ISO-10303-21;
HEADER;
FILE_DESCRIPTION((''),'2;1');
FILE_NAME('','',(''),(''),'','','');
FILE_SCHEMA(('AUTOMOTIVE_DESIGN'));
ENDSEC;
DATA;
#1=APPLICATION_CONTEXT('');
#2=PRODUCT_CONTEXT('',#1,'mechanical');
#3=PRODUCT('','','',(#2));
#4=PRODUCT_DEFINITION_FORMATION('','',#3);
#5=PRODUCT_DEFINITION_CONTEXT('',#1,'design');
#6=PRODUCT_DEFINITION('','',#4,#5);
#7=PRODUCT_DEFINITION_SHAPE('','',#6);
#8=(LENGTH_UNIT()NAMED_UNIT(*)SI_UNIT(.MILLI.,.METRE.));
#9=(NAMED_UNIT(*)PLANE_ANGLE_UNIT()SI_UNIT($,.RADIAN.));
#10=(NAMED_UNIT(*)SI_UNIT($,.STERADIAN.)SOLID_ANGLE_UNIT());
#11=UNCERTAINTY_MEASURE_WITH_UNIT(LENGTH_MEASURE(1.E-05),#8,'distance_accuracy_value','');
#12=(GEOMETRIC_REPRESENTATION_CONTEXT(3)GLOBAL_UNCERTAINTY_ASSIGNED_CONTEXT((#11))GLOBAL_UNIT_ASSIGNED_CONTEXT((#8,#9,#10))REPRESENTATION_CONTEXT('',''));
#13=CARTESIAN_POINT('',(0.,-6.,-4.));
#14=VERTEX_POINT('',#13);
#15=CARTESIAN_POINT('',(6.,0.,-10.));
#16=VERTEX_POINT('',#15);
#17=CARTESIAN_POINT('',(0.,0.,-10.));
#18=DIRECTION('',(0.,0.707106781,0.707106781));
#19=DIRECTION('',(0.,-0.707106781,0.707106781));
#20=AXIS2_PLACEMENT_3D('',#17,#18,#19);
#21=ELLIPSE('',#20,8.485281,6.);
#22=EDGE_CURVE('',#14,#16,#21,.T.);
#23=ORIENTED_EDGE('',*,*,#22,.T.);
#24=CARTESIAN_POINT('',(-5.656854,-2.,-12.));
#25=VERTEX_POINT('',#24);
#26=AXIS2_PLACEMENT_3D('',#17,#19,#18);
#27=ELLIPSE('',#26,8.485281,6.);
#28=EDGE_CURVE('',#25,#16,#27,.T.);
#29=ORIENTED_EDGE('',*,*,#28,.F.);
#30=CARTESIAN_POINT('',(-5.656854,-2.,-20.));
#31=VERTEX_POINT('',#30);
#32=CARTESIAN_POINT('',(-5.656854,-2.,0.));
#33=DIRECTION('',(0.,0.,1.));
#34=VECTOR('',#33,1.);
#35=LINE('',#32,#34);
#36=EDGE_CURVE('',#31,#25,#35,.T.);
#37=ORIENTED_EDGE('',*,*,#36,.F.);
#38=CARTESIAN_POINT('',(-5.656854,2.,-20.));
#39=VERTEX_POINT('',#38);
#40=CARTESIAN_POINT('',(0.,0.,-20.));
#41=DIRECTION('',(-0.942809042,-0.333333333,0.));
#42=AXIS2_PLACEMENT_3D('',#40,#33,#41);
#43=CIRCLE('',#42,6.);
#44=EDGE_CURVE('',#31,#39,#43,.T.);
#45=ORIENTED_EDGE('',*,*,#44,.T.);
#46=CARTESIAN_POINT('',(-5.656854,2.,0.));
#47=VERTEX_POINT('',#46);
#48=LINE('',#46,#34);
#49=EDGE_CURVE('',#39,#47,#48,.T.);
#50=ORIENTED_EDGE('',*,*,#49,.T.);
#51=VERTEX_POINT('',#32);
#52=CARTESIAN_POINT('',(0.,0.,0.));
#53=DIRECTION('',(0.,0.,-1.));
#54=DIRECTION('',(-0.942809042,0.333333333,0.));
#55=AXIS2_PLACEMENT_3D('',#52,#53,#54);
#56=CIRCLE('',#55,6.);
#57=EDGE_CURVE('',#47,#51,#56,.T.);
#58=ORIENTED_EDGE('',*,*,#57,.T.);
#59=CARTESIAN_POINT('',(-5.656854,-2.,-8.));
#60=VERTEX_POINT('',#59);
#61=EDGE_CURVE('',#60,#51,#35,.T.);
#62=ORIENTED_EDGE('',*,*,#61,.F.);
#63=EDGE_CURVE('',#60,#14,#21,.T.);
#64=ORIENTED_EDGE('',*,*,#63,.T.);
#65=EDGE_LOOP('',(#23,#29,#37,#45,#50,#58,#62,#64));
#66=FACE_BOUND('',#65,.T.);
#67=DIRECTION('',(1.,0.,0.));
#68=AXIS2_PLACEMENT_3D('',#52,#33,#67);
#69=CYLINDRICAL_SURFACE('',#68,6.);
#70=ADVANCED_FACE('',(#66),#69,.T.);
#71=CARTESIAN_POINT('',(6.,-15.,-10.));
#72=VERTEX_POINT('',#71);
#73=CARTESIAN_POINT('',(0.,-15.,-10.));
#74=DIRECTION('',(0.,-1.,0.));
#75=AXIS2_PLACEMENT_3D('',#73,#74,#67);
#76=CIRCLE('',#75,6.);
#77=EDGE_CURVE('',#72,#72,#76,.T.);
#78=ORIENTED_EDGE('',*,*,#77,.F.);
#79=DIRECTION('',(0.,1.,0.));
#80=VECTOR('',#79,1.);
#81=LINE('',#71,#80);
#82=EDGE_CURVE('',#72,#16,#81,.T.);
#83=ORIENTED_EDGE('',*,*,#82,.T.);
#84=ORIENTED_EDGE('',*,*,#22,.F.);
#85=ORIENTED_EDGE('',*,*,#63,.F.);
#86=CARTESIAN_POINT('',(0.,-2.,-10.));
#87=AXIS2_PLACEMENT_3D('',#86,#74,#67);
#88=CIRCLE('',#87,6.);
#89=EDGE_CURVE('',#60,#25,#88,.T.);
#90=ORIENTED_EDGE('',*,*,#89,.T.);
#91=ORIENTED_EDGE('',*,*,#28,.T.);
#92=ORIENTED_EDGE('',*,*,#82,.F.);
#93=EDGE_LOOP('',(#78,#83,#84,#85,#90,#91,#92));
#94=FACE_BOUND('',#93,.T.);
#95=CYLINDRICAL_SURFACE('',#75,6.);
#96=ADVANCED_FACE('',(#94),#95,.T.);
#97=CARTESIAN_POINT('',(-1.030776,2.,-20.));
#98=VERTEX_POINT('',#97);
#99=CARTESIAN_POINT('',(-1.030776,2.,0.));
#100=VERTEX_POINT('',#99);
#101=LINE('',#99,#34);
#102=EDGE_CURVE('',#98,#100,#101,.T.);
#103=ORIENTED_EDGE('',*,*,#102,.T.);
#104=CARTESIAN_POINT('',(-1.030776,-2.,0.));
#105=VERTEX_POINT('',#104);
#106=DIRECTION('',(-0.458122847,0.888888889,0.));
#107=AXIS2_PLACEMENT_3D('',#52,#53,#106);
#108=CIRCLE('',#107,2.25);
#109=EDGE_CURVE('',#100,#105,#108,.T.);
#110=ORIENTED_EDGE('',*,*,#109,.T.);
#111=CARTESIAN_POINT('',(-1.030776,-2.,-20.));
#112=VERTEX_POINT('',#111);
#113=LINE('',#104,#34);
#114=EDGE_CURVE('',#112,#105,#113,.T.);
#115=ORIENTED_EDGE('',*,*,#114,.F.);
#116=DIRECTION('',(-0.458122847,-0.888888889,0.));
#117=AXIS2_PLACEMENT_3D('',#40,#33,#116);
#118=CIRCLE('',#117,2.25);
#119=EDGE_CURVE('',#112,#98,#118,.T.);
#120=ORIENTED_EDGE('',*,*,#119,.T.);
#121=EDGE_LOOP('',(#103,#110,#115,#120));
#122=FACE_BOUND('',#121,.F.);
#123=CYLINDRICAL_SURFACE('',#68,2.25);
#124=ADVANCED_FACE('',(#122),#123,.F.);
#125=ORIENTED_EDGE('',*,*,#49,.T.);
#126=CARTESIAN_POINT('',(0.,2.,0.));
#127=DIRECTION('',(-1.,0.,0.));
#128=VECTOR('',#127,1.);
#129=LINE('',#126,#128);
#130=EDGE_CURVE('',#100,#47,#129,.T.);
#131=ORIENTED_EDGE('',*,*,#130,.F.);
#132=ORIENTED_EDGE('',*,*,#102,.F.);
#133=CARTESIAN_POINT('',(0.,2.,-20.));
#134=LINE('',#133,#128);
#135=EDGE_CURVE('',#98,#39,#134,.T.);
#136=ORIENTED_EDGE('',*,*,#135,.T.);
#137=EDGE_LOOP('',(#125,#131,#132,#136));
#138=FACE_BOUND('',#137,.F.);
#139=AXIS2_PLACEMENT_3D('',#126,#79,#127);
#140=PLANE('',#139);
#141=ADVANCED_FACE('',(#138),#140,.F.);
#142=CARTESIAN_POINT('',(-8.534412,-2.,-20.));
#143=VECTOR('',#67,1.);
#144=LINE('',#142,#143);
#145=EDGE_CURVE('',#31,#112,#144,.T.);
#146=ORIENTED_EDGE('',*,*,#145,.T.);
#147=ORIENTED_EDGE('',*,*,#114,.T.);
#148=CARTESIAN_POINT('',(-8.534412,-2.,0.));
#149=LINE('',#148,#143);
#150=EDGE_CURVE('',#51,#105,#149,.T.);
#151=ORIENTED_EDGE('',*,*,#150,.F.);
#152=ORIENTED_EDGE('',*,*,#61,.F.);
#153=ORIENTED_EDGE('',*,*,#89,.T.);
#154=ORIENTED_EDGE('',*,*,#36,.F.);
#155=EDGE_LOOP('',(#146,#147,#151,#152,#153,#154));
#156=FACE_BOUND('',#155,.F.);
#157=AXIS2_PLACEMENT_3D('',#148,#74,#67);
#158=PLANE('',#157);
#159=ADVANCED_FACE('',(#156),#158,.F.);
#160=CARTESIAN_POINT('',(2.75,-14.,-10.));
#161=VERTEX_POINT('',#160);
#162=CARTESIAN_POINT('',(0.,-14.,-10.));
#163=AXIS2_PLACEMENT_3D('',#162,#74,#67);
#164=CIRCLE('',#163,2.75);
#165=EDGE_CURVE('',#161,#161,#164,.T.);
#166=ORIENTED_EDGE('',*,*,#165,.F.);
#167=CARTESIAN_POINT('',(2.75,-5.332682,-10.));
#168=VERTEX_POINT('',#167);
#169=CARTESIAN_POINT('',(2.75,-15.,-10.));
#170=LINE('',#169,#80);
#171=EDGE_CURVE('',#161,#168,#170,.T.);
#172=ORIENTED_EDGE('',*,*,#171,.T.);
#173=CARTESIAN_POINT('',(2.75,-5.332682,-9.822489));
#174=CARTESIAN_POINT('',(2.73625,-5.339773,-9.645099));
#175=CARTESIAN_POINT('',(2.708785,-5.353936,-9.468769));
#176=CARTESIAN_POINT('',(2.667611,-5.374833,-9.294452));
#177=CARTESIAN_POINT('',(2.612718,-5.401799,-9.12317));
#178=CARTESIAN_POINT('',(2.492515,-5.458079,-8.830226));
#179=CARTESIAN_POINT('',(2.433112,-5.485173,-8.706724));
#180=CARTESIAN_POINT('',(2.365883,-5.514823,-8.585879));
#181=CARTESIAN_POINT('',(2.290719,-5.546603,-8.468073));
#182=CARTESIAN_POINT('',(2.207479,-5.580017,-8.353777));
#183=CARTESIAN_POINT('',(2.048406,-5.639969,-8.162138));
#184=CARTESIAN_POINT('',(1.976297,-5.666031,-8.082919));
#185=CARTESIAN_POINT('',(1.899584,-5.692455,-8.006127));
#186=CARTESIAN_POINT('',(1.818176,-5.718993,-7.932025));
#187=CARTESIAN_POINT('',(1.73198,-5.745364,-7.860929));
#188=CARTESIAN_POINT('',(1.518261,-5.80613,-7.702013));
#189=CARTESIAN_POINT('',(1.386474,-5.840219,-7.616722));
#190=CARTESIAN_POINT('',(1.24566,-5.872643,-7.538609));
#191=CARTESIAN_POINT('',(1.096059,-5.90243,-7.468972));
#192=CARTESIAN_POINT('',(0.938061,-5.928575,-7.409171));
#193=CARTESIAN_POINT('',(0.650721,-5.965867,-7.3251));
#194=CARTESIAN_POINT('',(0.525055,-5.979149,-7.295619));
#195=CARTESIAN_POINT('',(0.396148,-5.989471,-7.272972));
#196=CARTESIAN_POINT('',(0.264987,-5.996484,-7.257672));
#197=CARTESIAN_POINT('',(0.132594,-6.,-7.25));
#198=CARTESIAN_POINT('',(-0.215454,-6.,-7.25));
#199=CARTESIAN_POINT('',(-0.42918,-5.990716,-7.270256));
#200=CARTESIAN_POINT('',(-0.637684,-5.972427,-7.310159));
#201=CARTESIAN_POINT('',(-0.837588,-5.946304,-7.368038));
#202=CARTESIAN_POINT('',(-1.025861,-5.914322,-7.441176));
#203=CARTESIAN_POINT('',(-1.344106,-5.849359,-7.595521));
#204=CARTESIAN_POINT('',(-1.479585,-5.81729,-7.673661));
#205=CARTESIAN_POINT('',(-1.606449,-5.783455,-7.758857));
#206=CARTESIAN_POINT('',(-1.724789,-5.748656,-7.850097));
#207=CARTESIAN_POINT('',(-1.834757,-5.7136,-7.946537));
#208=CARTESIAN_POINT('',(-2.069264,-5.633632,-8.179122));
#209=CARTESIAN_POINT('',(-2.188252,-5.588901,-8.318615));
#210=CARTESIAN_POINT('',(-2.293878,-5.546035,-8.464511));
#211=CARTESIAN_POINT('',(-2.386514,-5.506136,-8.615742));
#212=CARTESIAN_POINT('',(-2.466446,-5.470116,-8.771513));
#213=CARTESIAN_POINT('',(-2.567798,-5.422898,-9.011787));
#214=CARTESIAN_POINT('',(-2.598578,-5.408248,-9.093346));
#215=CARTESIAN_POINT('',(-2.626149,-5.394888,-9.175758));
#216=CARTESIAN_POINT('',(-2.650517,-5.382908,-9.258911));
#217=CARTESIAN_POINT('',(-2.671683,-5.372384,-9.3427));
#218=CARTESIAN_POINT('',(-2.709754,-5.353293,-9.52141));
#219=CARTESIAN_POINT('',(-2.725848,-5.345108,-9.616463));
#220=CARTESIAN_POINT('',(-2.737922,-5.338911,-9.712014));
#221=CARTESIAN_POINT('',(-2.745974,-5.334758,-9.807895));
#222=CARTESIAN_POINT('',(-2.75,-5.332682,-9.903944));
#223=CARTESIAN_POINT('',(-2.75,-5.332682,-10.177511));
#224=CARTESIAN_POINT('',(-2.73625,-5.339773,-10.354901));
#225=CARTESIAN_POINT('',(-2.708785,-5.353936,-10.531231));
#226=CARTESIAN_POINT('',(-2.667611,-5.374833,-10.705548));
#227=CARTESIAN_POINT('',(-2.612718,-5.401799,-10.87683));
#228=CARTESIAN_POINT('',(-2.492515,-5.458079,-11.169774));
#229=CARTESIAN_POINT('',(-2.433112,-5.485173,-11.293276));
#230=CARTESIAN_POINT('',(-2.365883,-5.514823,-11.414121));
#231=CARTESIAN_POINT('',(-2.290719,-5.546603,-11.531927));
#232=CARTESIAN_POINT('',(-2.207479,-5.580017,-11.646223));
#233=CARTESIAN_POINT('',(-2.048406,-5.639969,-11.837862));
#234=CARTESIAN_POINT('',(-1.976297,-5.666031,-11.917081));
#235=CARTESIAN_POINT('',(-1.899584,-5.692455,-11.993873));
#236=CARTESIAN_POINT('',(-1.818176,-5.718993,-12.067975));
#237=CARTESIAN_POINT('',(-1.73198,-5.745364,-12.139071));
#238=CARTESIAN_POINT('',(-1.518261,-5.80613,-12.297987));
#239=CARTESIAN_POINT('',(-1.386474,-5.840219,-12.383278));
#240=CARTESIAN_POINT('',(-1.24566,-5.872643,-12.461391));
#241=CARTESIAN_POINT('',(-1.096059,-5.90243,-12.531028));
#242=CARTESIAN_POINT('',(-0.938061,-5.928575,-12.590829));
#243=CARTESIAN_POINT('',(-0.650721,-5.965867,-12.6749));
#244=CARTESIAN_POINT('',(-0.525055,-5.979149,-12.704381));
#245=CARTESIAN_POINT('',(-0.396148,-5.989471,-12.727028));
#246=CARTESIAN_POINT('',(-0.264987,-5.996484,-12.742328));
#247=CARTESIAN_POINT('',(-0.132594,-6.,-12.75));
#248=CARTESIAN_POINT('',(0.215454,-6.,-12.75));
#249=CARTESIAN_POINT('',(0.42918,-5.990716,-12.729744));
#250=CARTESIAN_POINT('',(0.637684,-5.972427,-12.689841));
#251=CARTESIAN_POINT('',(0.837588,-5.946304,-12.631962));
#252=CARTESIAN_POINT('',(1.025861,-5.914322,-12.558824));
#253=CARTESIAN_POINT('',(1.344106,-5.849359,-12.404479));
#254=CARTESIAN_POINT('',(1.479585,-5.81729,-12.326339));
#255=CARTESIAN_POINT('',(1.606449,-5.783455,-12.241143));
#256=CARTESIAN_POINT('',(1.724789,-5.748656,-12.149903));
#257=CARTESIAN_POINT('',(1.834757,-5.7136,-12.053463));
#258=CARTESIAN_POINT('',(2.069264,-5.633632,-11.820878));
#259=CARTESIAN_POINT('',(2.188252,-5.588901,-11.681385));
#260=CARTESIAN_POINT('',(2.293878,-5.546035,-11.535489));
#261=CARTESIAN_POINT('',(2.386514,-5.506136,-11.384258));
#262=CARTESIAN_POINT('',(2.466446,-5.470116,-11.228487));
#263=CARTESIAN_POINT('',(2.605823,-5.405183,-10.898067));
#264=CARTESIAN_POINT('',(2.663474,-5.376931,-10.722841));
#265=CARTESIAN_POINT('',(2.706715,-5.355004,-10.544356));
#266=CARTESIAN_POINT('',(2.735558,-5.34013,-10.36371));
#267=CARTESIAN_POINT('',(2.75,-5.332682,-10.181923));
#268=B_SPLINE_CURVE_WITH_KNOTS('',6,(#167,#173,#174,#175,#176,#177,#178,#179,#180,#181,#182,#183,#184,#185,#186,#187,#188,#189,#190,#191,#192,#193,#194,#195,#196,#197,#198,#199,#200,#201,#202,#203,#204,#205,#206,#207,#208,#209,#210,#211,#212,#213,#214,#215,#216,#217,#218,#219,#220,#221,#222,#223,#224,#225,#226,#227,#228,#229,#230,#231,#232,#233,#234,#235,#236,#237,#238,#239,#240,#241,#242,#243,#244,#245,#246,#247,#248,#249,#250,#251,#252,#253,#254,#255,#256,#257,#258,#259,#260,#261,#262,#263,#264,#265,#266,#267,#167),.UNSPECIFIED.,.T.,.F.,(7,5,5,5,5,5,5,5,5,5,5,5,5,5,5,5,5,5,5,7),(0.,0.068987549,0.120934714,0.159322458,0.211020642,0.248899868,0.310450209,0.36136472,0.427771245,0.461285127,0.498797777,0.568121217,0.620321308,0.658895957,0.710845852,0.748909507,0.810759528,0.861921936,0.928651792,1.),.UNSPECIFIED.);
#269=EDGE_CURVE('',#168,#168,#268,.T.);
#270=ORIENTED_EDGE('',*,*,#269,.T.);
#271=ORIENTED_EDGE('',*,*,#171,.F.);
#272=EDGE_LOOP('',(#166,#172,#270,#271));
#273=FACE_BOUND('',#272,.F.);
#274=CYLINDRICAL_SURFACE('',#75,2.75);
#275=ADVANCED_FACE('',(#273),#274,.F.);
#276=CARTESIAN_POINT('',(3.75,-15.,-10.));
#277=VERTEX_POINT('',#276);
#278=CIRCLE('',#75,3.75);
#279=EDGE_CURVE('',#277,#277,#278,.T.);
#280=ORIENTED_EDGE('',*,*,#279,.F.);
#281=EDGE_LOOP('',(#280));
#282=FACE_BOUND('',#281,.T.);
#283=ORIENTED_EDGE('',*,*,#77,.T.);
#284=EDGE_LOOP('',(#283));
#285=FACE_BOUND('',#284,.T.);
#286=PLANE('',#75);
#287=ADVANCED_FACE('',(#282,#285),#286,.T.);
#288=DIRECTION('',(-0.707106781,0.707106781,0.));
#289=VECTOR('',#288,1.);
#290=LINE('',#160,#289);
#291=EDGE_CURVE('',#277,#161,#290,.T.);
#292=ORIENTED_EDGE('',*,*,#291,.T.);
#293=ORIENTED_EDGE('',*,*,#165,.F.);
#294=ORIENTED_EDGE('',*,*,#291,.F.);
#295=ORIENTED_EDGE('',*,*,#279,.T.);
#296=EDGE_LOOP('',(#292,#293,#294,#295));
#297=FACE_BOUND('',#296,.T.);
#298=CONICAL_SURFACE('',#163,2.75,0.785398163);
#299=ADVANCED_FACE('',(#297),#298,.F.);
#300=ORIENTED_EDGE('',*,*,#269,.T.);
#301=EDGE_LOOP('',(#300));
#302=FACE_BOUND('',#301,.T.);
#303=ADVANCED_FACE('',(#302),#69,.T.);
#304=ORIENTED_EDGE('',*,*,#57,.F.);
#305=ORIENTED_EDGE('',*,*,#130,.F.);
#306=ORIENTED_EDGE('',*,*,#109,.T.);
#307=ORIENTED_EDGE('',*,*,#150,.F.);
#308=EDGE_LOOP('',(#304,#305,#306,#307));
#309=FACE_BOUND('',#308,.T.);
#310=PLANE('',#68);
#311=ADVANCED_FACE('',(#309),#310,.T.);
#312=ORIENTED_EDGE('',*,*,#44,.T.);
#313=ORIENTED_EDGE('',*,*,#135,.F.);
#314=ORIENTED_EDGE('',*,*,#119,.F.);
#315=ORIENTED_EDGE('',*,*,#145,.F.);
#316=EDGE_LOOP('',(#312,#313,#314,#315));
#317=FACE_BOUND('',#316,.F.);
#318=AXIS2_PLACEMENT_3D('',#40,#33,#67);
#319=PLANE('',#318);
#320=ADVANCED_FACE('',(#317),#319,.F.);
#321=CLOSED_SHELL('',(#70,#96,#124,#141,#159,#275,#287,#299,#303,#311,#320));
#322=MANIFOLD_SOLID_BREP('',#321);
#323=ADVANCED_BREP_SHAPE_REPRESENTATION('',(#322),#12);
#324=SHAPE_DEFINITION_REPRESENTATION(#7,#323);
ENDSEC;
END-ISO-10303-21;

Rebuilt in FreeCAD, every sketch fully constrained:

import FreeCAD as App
import Part
import Sketcher
Q = App.Units.Quantity


def edges_at(feature, points):
    """Names of the edges that pass closest to the given points."""
    edges = feature.Shape.Edges
    near = lambda p: min(range(len(edges)), key=lambda i: edges[i].distToShape(Part.Vertex(*p))[0])
    return sorted({f"Edge{near(p) + 1}" for p in points})

doc = App.newDocument("Part")
body = doc.addObject("PartDesign::Body", "Body")

# Sketch on XY plane
sketch1 = body.newObject("Sketcher::SketchObject", "Sketch")
sketch1.AttachmentSupport = (doc.getObject("XY_Plane"), [""])
sketch1.MapMode = "FlatFace"
sketch1.addGeometry(Part.Circle(App.Vector(0, 0, 0), App.Vector(0, 0, 1), 6), False)
sketch1.addConstraint([
    Sketcher.Constraint("Coincident", 0, 3, -1, 1),
    Sketcher.Constraint("Diameter", 0, Q("12 mm")),
])
pad1 = body.newObject("PartDesign::Pad", "Pad")
pad1.Profile = sketch1
pad1.Length = 20
pad1.Reversed = True

# Sketch on XZ plane
sketch2 = body.newObject("Sketcher::SketchObject", "Sketch001")
sketch2.AttachmentSupport = (doc.getObject("XZ_Plane"), [""])
sketch2.MapMode = "FlatFace"
sketch2.AttachmentOffset = App.Placement(App.Vector(0, 0, 15), App.Rotation())
sketch2.addGeometry([
    Part.Circle(App.Vector(0, -10, 0), App.Vector(0, 0, 1), 6),
    Part.Circle(App.Vector(0, -10, 0), App.Vector(0, 0, 1), 2.75),
], False)
sketch2.addConstraint([
    Sketcher.Constraint("Coincident", 1, 3, 0, 3),
    Sketcher.Constraint("PointOnObject", 0, 3, -2),
    Sketcher.Constraint("Diameter", 0, Q("12 mm")),
    Sketcher.Constraint("Diameter", 1, Q("5.5 mm")),
    Sketcher.Constraint("DistanceY", 0, 3, -1, 1, Q("10 mm")),
])
pad2 = body.newObject("PartDesign::Pad", "Pad001")
pad2.Profile = sketch2
pad2.Length = 15
pad2.Reversed = True

# Sketch on XY plane
sketch3 = body.newObject("Sketcher::SketchObject", "Sketch002")
sketch3.AttachmentSupport = (doc.getObject("XY_Plane"), [""])
sketch3.MapMode = "FlatFace"
sketch3.addGeometry(Part.Circle(App.Vector(0, 0, 0), App.Vector(0, 0, 1), 2.25), False)
sketch3.addConstraint([
    Sketcher.Constraint("Coincident", 0, 3, -1, 1),
    Sketcher.Constraint("Diameter", 0, Q("4.5 mm")),
])
pocket1 = body.newObject("PartDesign::Pocket", "Pocket")
pocket1.Profile = sketch3
pocket1.Type = "ThroughAll"

# Sketch on XY plane
sketch4 = body.newObject("Sketcher::SketchObject", "Sketch003")
sketch4.AttachmentSupport = (doc.getObject("XY_Plane"), [""])
sketch4.MapMode = "FlatFace"
sketch4.addGeometry([
    Part.LineSegment(App.Vector(0, -2, 0), App.Vector(0, 2, 0)),
    Part.LineSegment(App.Vector(0, 2, 0), App.Vector(-8.534412, 2, 0)),
    Part.LineSegment(App.Vector(-8.534412, 2, 0), App.Vector(-8.534412, -2, 0)),
    Part.LineSegment(App.Vector(-8.534412, -2, 0), App.Vector(0, -2, 0)),
], False)
sketch4.addConstraint([
    Sketcher.Constraint("Coincident", 0, 2, 1, 1),
    Sketcher.Constraint("Coincident", 1, 2, 2, 1),
    Sketcher.Constraint("Coincident", 2, 2, 3, 1),
    Sketcher.Constraint("Coincident", 3, 2, 0, 1),
    Sketcher.Constraint("Vertical", 0),
    Sketcher.Constraint("Horizontal", 1),
    Sketcher.Constraint("Vertical", 2),
    Sketcher.Constraint("Horizontal", 3),
    Sketcher.Constraint("Symmetric", 0, 2, 3, 2, -1, 1),
    Sketcher.Constraint("DistanceY", 0, 1, 0, 2, Q("4 mm")),
    Sketcher.Constraint("DistanceX", 1, 2, 1, 1, Q("8.534412 mm")),
])
pocket2 = body.newObject("PartDesign::Pocket", "Pocket001")
pocket2.Profile = sketch4
pocket2.Type = "ThroughAll"
doc.recompute()

chamfer = body.newObject("PartDesign::Chamfer", "Chamfer")
chamfer.Base = (pocket2, edges_at(pocket2, [(-2.75, -15, -10)]))
chamfer.Size = 1

doc.recompute()
